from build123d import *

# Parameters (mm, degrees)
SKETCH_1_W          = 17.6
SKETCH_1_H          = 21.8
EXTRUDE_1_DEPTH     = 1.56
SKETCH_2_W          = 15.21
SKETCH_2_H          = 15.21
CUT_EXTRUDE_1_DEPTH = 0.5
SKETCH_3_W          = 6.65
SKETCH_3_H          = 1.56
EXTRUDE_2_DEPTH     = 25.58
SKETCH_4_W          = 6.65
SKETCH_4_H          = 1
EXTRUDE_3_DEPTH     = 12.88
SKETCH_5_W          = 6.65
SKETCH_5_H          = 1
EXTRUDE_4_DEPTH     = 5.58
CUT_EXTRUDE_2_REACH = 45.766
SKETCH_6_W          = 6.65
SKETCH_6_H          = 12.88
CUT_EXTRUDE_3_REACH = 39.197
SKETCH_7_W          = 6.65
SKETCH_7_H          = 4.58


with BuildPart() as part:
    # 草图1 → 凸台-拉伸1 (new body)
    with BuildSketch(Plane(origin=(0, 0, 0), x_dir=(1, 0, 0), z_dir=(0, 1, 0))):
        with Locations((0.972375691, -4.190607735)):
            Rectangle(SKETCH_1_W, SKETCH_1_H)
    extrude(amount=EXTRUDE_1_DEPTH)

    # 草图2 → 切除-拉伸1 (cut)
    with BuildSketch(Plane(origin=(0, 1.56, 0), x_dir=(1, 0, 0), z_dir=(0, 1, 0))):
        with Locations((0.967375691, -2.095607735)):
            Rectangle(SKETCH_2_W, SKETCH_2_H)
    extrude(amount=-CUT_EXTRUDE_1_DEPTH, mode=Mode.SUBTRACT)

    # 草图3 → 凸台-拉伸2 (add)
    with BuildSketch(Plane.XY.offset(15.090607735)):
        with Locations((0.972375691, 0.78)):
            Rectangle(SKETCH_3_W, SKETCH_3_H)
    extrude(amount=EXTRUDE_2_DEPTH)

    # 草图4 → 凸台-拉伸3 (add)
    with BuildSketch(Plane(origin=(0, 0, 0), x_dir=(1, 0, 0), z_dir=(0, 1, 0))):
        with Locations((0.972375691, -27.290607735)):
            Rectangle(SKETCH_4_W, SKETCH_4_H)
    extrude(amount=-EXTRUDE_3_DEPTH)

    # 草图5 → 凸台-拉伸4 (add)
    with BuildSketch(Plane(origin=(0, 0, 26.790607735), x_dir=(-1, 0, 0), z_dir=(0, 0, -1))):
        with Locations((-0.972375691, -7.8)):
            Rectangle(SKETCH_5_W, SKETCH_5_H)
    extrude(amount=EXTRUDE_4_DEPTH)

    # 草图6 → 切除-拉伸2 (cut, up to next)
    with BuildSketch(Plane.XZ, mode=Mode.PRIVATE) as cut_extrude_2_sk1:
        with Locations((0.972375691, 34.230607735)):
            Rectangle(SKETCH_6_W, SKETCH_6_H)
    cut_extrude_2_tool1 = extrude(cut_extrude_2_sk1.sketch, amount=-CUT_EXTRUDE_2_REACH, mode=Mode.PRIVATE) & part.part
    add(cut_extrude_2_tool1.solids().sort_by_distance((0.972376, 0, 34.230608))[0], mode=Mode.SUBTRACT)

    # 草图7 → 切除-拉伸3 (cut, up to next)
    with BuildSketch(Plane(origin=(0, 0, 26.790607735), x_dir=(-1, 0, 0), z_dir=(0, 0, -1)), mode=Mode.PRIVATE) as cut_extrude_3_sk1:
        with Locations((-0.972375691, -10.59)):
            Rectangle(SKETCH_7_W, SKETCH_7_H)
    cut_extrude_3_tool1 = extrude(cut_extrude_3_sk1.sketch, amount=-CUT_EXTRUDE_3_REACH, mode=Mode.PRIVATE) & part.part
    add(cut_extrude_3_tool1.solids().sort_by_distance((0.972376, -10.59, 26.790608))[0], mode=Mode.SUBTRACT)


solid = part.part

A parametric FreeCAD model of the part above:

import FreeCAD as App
import Part
import Sketcher
from FreeCAD import Vector

doc = App.newDocument("Part")
body = doc.addObject("PartDesign::Body", "Body")

sketch1 = body.newObject("Sketcher::SketchObject", "Sketch")
sketch1.AttachmentSupport = (doc.getObject("XZ_Plane"), [""])
sketch1.MapMode = "FlatFace"
sketch1.addGeometry(Part.LineSegment(Vector(-7.827624, -6.709392, 0), Vector(-7.827624, 15.090608, 0)), False)
sketch1.addGeometry(Part.LineSegment(Vector(-7.827624, 15.090608, 0), Vector(9.772376, 15.090608, 0)), False)
sketch1.addGeometry(Part.LineSegment(Vector(9.772376, 15.090608, 0), Vector(9.772376, -6.709392, 0)), False)
sketch1.addGeometry(Part.LineSegment(Vector(9.772376, -6.709392, 0), Vector(-7.827624, -6.709392, 0)), False)
sketch1.addConstraint(Sketcher.Constraint("Coincident", 0, 2, 1, 1))
sketch1.addConstraint(Sketcher.Constraint("Coincident", 1, 2, 2, 1))
sketch1.addConstraint(Sketcher.Constraint("Coincident", 2, 2, 3, 1))
sketch1.addConstraint(Sketcher.Constraint("Coincident", 3, 2, 0, 1))
sketch1.addConstraint(Sketcher.Constraint("Vertical", 0))
sketch1.addConstraint(Sketcher.Constraint("Horizontal", 1))
sketch1.addConstraint(Sketcher.Constraint("Vertical", 2))
sketch1.addConstraint(Sketcher.Constraint("Horizontal", 3))
sketch1.addConstraint(Sketcher.Constraint("DistanceX", 1, 1, 1, 2, 17.6))
sketch1.addConstraint(Sketcher.Constraint("DistanceY", 0, 1, 0, 2, 21.8))
sketch1.addConstraint(Sketcher.Constraint("DistanceX", 0, 2, -1, 1, 7.827624))
sketch1.addConstraint(Sketcher.Constraint("DistanceY", -1, 1, 0, 2, 15.090608))
pad1 = body.newObject("PartDesign::Pad", "Pad")
pad1.Profile = sketch1
pad1.Length = 1.56
pad1.Reversed = True

sketch2 = body.newObject("Sketcher::SketchObject", "Sketch001")
sketch2.AttachmentSupport = (doc.getObject("XZ_Plane"), [""])
sketch2.MapMode = "FlatFace"
sketch2.AttachmentOffset = App.Placement(Vector(0, 0, -1.56), App.Rotation())
sketch2.addGeometry(Part.LineSegment(Vector(-6.637624, -5.509392, 0), Vector(-6.637624, 9.700608, 0)), False)
sketch2.addGeometry(Part.LineSegment(Vector(-6.637624, 9.700608, 0), Vector(8.572376, 9.700608, 0)), False)
sketch2.addGeometry(Part.LineSegment(Vector(8.572376, 9.700608, 0), Vector(8.572376, -5.509392, 0)), False)
sketch2.addGeometry(Part.LineSegment(Vector(8.572376, -5.509392, 0), Vector(-6.637624, -5.509392, 0)), False)
sketch2.addConstraint(Sketcher.Constraint("Coincident", 0, 2, 1, 1))
sketch2.addConstraint(Sketcher.Constraint("Coincident", 1, 2, 2, 1))
sketch2.addConstraint(Sketcher.Constraint("Coincident", 2, 2, 3, 1))
sketch2.addConstraint(Sketcher.Constraint("Coincident", 3, 2, 0, 1))
sketch2.addConstraint(Sketcher.Constraint("Vertical", 0))
sketch2.addConstraint(Sketcher.Constraint("Horizontal", 1))
sketch2.addConstraint(Sketcher.Constraint("Vertical", 2))
sketch2.addConstraint(Sketcher.Constraint("Horizontal", 3))
sketch2.addConstraint(Sketcher.Constraint("Equal", 3, 0))
sketch2.addConstraint(Sketcher.Constraint("DistanceX", 1, 1, 1, 2, 15.21))
sketch2.addConstraint(Sketcher.Constraint("DistanceX", 0, 2, -1, 1, 6.637624))
sketch2.addConstraint(Sketcher.Constraint("DistanceY", -1, 1, 0, 2, 9.700608))
pocket1 = body.newObject("PartDesign::Pocket", "Pocket")
pocket1.Profile = sketch2
pocket1.Length = 0.5
pocket1.Reversed = True

sketch3 = body.newObject("Sketcher::SketchObject", "Sketch002")
sketch3.AttachmentSupport = (doc.getObject("XY_Plane"), [""])
sketch3.MapMode = "FlatFace"
sketch3.AttachmentOffset = App.Placement(Vector(0, 0, 15.090608), App.Rotation())
sketch3.addGeometry(Part.LineSegment(Vector(-2.352624, 1.56, 0), Vector(-2.352624, 0, 0)), False)
sketch3.addGeometry(Part.LineSegment(Vector(-2.352624, 0, 0), Vector(4.297376, 0, 0)), False)
sketch3.addGeometry(Part.LineSegment(Vector(4.297376, 0, 0), Vector(4.297376, 1.56, 0)), False)
sketch3.addGeometry(Part.LineSegment(Vector(4.297376, 1.56, 0), Vector(-2.352624, 1.56, 0)), False)
sketch3.addConstraint(Sketcher.Constraint("Coincident", 0, 2, 1, 1))
sketch3.addConstraint(Sketcher.Constraint("Coincident", 1, 2, 2, 1))
sketch3.addConstraint(Sketcher.Constraint("Coincident", 2, 2, 3, 1))
sketch3.addConstraint(Sketcher.Constraint("Coincident", 3, 2, 0, 1))
sketch3.addConstraint(Sketcher.Constraint("Vertical", 0))
sketch3.addConstraint(Sketcher.Constraint("Horizontal", 1))
sketch3.addConstraint(Sketcher.Constraint("Vertical", 2))
sketch3.addConstraint(Sketcher.Constraint("Horizontal", 3))
sketch3.addConstraint(Sketcher.Constraint("PointOnObject", 0, 2, -1))
sketch3.addConstraint(Sketcher.Constraint("DistanceX", 1, 1, 1, 2, 6.65))
sketch3.addConstraint(Sketcher.Constraint("DistanceY", 0, 2, 0, 1, 1.56))
sketch3.addConstraint(Sketcher.Constraint("DistanceX", 0, 2, -1, 1, 2.352624))
pad2 = body.newObject("PartDesign::Pad", "Pad001")
pad2.Profile = sketch3
pad2.Length = 25.58

sketch4 = body.newObject("Sketcher::SketchObject", "Sketch003")
sketch4.AttachmentSupport = (doc.getObject("XZ_Plane"), [""])
sketch4.MapMode = "FlatFace"
sketch4.addGeometry(Part.LineSegment(Vector(-2.352624, 26.790608, 0), Vector(-2.352624, 27.790608, 0)), False)
sketch4.addGeometry(Part.LineSegment(Vector(-2.352624, 27.790608, 0), Vector(4.297376, 27.790608, 0)), False)
sketch4.addGeometry(Part.LineSegment(Vector(4.297376, 27.790608, 0), Vector(4.297376, 26.790608, 0)), False)
sketch4.addGeometry(Part.LineSegment(Vector(4.297376, 26.790608, 0), Vector(-2.352624, 26.790608, 0)), False)
sketch4.addConstraint(Sketcher.Constraint("Coincident", 0, 2, 1, 1))
sketch4.addConstraint(Sketcher.Constraint("Coincident", 1, 2, 2, 1))
sketch4.addConstraint(Sketcher.Constraint("Coincident", 2, 2, 3, 1))
sketch4.addConstraint(Sketcher.Constraint("Coincident", 3, 2, 0, 1))
sketch4.addConstraint(Sketcher.Constraint("Vertical", 0))
sketch4.addConstraint(Sketcher.Constraint("Horizontal", 1))
sketch4.addConstraint(Sketcher.Constraint("Vertical", 2))
sketch4.addConstraint(Sketcher.Constraint("Horizontal", 3))
sketch4.addConstraint(Sketcher.Constraint("DistanceY", 0, 1, 0, 2, 1.0))
sketch4.addConstraint(Sketcher.Constraint("DistanceX", 1, 1, 1, 2, 6.65))
sketch4.addConstraint(Sketcher.Constraint("DistanceX", 0, 2, -1, 1, 2.352624))
sketch4.addConstraint(Sketcher.Constraint("DistanceY", -1, 1, 0, 2, 27.790608))
pad3 = body.newObject("PartDesign::Pad", "Pad002")
pad3.Profile = sketch4
pad3.Length = 12.88

sketch5 = body.newObject("Sketcher::SketchObject", "Sketch004")
sketch5.AttachmentSupport = (doc.getObject("XY_Plane"), [""])
sketch5.MapMode = "FlatFace"
sketch5.AttachmentOffset = App.Placement(Vector(0, 0, 26.790608), App.Rotation())
sketch5.addGeometry(Part.LineSegment(Vector(4.297376, -7.3, 0), Vector(4.297376, -8.3, 0)), False)
sketch5.addGeometry(Part.LineSegment(Vector(4.297376, -8.3, 0), Vector(-2.352624, -8.3, 0)), False)
sketch5.addGeometry(Part.LineSegment(Vector(-2.352624, -8.3, 0), Vector(-2.352624, -7.3, 0)), False)
sketch5.addGeometry(Part.LineSegment(Vector(-2.352624, -7.3, 0), Vector(4.297376, -7.3, 0)), False)
sketch5.addConstraint(Sketcher.Constraint("Coincident", 0, 2, 1, 1))
sketch5.addConstraint(Sketcher.Constraint("Coincident", 1, 2, 2, 1))
sketch5.addConstraint(Sketcher.Constraint("Coincident", 2, 2, 3, 1))
sketch5.addConstraint(Sketcher.Constraint("Coincident", 3, 2, 0, 1))
sketch5.addConstraint(Sketcher.Constraint("Vertical", 0))
sketch5.addConstraint(Sketcher.Constraint("Horizontal", 1))
sketch5.addConstraint(Sketcher.Constraint("Vertical", 2))
sketch5.addConstraint(Sketcher.Constraint("Horizontal", 3))
sketch5.addConstraint(Sketcher.Constraint("DistanceY", 0, 2, 0, 1, 1.0))
sketch5.addConstraint(Sketcher.Constraint("DistanceX", 1, 2, 1, 1, 6.65))
sketch5.addConstraint(Sketcher.Constraint("DistanceY", 0, 2, -1, 1, 8.3))
sketch5.addConstraint(Sketcher.Constraint("DistanceX", -1, 1, 0, 2, 4.297376))
pad4 = body.newObject("PartDesign::Pad", "Pad003")
pad4.Profile = sketch5
pad4.Length = 5.58
pad4.Reversed = True

sketch6 = body.newObject("Sketcher::SketchObject", "Sketch005")
sketch6.AttachmentSupport = (doc.getObject("XZ_Plane"), [""])
sketch6.MapMode = "FlatFace"
sketch6.addGeometry(Part.LineSegment(Vector(-2.352624, 40.670608, 0), Vector(-2.352624, 27.790608, 0)), False)
sketch6.addGeometry(Part.LineSegment(Vector(-2.352624, 27.790608, 0), Vector(4.297376, 27.790608, 0)), False)
sketch6.addGeometry(Part.LineSegment(Vector(4.297376, 27.790608, 0), Vector(4.297376, 40.670608, 0)), False)
sketch6.addGeometry(Part.LineSegment(Vector(4.297376, 40.670608, 0), Vector(-2.352624, 40.670608, 0)), False)
sketch6.addConstraint(Sketcher.Constraint("Coincident", 0, 2, 1, 1))
sketch6.addConstraint(Sketcher.Constraint("Coincident", 1, 2, 2, 1))
sketch6.addConstraint(Sketcher.Constraint("Coincident", 2, 2, 3, 1))
sketch6.addConstraint(Sketcher.Constraint("Coincident", 3, 2, 0, 1))
sketch6.addConstraint(Sketcher.Constraint("Vertical", 0))
sketch6.addConstraint(Sketcher.Constraint("Horizontal", 1))
sketch6.addConstraint(Sketcher.Constraint("Vertical", 2))
sketch6.addConstraint(Sketcher.Constraint("Horizontal", 3))
sketch6.addConstraint(Sketcher.Constraint("DistanceX", 1, 1, 1, 2, 6.65))
sketch6.addConstraint(Sketcher.Constraint("DistanceY", 0, 2, 0, 1, 12.88))
sketch6.addConstraint(Sketcher.Constraint("DistanceX", 0, 2, -1, 1, 2.352624))
sketch6.addConstraint(Sketcher.Constraint("DistanceY", -1, 1, 0, 2, 27.790608))
pocket2 = body.newObject("PartDesign::Pocket", "Pocket001")
pocket2.Profile = sketch6
pocket2.Type = "UpToFirst"

sketch7 = body.newObject("Sketcher::SketchObject", "Sketch006")
sketch7.AttachmentSupport = (doc.getObject("XY_Plane"), [""])
sketch7.MapMode = "FlatFace"
sketch7.AttachmentOffset = App.Placement(Vector(0, 0, 26.790608), App.Rotation())
sketch7.addGeometry(Part.LineSegment(Vector(4.297376, -8.3, 0), Vector(4.297376, -12.88, 0)), False)
sketch7.addGeometry(Part.LineSegment(Vector(4.297376, -12.88, 0), Vector(-2.352624, -12.88, 0)), False)
sketch7.addGeometry(Part.LineSegment(Vector(-2.352624, -12.88, 0), Vector(-2.352624, -8.3, 0)), False)
sketch7.addGeometry(Part.LineSegment(Vector(-2.352624, -8.3, 0), Vector(4.297376, -8.3, 0)), False)
sketch7.addConstraint(Sketcher.Constraint("Coincident", 0, 2, 1, 1))
sketch7.addConstraint(Sketcher.Constraint("Coincident", 1, 2, 2, 1))
sketch7.addConstraint(Sketcher.Constraint("Coincident", 2, 2, 3, 1))
sketch7.addConstraint(Sketcher.Constraint("Coincident", 3, 2, 0, 1))
sketch7.addConstraint(Sketcher.Constraint("Vertical", 0))
sketch7.addConstraint(Sketcher.Constraint("Horizontal", 1))
sketch7.addConstraint(Sketcher.Constraint("Vertical", 2))
sketch7.addConstraint(Sketcher.Constraint("Horizontal", 3))
sketch7.addConstraint(Sketcher.Constraint("DistanceX", 1, 2, 1, 1, 6.65))
sketch7.addConstraint(Sketcher.Constraint("DistanceY", 0, 2, 0, 1, 4.58))
sketch7.addConstraint(Sketcher.Constraint("DistanceY", 2, 2, -1, 1, 8.3))
sketch7.addConstraint(Sketcher.Constraint("DistanceX", -1, 1, 0, 2, 4.297376))
pocket3 = body.newObject("PartDesign::Pocket", "Pocket002")
pocket3.Profile = sketch7
pocket3.Type = "UpToFirst"
pocket3.Reversed = True

doc.recompute()
